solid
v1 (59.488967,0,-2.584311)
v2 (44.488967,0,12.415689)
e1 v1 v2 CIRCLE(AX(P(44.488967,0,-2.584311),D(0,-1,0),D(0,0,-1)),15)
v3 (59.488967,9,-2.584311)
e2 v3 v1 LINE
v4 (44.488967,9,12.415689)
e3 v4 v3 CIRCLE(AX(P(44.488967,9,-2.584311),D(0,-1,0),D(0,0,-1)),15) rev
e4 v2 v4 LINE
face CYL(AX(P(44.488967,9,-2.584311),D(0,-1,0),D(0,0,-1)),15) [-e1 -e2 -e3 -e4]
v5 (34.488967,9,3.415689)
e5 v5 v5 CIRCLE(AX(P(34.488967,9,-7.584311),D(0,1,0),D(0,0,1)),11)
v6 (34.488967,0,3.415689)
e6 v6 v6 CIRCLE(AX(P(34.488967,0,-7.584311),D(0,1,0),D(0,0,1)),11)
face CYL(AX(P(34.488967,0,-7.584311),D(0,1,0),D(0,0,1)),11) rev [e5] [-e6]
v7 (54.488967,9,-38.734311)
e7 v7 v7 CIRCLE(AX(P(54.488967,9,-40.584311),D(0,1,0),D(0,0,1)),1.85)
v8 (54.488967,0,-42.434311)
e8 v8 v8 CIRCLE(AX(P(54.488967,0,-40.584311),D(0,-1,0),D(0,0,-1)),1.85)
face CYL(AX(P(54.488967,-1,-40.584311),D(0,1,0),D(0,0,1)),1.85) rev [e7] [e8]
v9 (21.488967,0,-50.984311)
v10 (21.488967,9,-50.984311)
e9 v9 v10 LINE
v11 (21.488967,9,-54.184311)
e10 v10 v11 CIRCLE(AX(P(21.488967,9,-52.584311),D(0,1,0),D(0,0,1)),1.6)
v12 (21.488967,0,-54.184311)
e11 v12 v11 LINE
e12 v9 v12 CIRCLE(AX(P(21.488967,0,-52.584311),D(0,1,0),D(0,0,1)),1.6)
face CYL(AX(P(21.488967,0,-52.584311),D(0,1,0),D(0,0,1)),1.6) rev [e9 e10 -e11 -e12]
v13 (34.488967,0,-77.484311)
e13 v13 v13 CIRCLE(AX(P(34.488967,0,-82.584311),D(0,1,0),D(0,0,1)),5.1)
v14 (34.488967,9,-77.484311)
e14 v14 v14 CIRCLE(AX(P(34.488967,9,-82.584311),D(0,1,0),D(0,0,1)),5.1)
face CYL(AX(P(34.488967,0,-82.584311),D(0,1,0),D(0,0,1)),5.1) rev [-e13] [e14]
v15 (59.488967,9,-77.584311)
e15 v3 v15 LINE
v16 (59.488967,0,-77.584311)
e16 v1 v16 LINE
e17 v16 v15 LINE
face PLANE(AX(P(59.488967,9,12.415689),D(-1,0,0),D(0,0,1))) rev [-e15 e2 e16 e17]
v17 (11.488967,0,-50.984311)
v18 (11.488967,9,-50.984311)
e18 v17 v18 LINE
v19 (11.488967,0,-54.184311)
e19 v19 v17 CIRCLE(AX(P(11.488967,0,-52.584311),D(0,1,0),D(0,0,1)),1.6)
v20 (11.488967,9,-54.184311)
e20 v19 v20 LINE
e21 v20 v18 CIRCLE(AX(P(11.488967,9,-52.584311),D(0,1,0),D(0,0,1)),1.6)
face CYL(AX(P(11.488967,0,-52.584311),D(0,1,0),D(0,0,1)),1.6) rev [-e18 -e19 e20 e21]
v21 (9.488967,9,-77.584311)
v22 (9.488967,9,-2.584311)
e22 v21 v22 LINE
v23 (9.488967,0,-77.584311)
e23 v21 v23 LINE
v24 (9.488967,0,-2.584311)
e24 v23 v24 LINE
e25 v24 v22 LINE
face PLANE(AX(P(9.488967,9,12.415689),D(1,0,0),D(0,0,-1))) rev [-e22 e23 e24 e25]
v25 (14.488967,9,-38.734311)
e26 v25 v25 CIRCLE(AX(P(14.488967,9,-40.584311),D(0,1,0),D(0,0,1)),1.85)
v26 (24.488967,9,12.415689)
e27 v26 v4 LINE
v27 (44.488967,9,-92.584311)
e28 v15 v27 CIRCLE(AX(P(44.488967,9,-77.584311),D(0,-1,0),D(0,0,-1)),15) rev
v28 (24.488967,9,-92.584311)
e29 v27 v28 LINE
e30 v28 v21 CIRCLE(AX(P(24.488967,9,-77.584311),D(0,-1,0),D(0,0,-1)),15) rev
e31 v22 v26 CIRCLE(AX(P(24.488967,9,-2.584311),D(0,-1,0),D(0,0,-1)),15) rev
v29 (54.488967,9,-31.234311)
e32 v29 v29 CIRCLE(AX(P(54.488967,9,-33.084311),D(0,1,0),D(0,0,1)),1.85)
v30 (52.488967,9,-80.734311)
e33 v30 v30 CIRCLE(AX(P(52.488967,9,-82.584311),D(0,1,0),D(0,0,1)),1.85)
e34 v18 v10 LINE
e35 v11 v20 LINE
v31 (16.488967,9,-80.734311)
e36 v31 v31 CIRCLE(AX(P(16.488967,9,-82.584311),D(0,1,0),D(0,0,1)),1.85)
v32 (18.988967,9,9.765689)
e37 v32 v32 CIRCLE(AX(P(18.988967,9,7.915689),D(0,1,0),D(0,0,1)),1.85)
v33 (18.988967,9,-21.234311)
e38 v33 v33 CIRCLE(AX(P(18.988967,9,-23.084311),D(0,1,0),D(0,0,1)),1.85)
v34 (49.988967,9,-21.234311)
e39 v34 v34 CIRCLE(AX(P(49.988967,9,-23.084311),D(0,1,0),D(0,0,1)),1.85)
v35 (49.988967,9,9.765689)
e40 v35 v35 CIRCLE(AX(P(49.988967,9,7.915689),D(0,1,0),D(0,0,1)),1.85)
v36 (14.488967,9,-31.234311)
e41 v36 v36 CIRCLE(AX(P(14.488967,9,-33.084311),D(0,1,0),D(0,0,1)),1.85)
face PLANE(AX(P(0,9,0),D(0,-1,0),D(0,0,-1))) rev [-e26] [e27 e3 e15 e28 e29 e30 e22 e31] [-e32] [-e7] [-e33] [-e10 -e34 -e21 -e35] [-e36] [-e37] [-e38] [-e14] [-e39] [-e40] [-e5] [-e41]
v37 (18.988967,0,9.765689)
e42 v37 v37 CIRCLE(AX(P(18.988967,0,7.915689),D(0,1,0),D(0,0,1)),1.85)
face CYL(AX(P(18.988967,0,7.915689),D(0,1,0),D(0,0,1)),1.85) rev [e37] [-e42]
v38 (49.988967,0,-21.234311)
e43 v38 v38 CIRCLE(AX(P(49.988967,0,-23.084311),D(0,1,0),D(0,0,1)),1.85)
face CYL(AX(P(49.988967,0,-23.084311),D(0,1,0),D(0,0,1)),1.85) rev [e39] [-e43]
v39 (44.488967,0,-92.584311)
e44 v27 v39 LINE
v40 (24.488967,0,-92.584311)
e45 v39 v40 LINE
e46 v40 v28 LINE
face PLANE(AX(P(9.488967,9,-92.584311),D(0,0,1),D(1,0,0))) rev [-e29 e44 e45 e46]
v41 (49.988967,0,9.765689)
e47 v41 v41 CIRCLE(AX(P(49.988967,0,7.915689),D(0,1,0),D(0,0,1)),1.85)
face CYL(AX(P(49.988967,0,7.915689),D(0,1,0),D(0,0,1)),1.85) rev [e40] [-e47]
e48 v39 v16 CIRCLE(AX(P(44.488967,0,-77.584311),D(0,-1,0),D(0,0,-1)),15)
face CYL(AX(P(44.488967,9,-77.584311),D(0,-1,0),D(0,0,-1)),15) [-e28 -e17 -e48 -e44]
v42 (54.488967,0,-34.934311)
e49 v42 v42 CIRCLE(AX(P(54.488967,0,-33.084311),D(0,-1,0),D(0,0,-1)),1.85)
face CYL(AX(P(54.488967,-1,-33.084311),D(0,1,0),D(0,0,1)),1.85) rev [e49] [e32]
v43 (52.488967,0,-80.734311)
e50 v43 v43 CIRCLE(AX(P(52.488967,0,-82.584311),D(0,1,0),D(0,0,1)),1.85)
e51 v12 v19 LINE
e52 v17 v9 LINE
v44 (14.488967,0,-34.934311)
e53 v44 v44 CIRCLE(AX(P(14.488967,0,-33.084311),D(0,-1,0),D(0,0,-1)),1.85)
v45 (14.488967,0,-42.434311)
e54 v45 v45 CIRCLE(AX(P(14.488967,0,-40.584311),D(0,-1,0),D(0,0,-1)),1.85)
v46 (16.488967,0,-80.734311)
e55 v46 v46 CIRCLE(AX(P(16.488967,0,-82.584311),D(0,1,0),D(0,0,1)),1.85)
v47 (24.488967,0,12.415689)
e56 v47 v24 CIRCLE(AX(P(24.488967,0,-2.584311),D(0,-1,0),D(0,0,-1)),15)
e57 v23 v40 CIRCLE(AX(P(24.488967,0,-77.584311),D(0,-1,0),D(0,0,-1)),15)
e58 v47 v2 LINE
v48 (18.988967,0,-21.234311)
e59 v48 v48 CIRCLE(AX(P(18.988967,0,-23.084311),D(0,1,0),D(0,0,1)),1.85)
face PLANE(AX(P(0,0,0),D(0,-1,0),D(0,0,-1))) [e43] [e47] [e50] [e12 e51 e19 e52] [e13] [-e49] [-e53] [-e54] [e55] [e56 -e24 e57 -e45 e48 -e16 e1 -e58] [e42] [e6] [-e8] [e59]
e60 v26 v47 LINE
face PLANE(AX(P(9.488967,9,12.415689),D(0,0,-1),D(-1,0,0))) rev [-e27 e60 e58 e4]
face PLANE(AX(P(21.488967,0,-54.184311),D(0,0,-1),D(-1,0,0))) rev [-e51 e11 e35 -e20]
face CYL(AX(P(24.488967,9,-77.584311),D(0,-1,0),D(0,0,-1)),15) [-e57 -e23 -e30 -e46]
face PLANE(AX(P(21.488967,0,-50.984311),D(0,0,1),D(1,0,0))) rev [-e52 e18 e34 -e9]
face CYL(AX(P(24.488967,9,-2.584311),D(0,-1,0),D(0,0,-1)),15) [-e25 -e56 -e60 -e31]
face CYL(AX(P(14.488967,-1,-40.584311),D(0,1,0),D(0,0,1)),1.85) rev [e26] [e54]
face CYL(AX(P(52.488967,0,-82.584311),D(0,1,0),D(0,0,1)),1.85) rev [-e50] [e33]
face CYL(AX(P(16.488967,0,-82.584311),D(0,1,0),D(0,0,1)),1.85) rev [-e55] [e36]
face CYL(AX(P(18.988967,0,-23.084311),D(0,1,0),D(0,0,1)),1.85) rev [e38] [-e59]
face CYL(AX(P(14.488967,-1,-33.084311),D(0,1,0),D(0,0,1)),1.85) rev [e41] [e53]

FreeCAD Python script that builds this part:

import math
import FreeCAD as App
import Part
import Sketcher


def edges_at(feature, points):
    """Names of the edges that pass closest to the given points."""
    edges = feature.Shape.Edges
    near = lambda p: min(range(len(edges)), key=lambda i: edges[i].distToShape(Part.Vertex(*p))[0])
    return sorted({f"Edge{near(p) + 1}" for p in points})


def add_polygon(sketch, points):
    """Adds a closed chain of lines whose ends are joined by coincident constraints."""
    first, n = sketch.GeometryCount, len(points)
    for a, b in zip(points, points[1:] + points[:1]):
        sketch.addGeometry(Part.LineSegment(App.Vector(*a, 0), App.Vector(*b, 0)), False)
    for i in range(n):
        sketch.addConstraint(Sketcher.Constraint("Coincident", first + i, 2, first + (i + 1) % n, 1))

doc = App.newDocument("Part")
body = doc.addObject("PartDesign::Body", "Body")

sketch1 = body.newObject("Sketcher::SketchObject", "Sketch")
sketch1.AttachmentSupport = (doc.getObject("XZ_Plane"), [""])
sketch1.MapMode = "FlatFace"
add_polygon(sketch1, [(9, -93), (9, 12), (59, 12), (59, -93)])
sketch1.addConstraint([
    Sketcher.Constraint("Vertical", 0),
    Sketcher.Constraint("Horizontal", 1),
    Sketcher.Constraint("Vertical", 2),
    Sketcher.Constraint("Horizontal", 3),
    Sketcher.Constraint("DistanceX", 1, 1, 1, 2, 50.0),
    Sketcher.Constraint("DistanceY", 0, 1, 0, 2, 105.0),
    Sketcher.Constraint("DistanceY", -1, 1, 0, 2, 12.415689),
    Sketcher.Constraint("DistanceX", -1, 1, 0, 2, 9.488967),
])
pad1 = body.newObject("PartDesign::Pad", "Pad")
pad1.Profile = sketch1
pad1.Length = 9
pad1.Reversed = True

sketch2 = body.newObject("Sketcher::SketchObject", "Sketch001")
sketch2.AttachmentSupport = (doc.getObject("XZ_Plane"), [""])
sketch2.MapMode = "FlatFace"
sketch2.AttachmentOffset = App.Placement(App.Vector(0, 0, -9), App.Rotation())
sketch2.addGeometry([
    Part.Circle(App.Vector(34.5, -7.6, 0), App.Vector(0, 0, 1), 11),
    Part.Circle(App.Vector(50, -23.1, 0), App.Vector(0, 0, 1), 1.9),
    Part.Circle(App.Vector(19, 7.9, 0), App.Vector(0, 0, 1), 1.9),
    Part.Circle(App.Vector(50, 7.9, 0), App.Vector(0, 0, 1), 1.9),
    Part.Circle(App.Vector(19, -23.1, 0), App.Vector(0, 0, 1), 1.9),
    Part.Circle(App.Vector(52.5, -82.6, 0), App.Vector(0, 0, 1), 1.9),
    Part.Circle(App.Vector(34.5, -82.6, 0), App.Vector(0, 0, 1), 5.1),
    Part.Circle(App.Vector(16.5, -82.6, 0), App.Vector(0, 0, 1), 1.9),
    Part.LineSegment(App.Vector(11.5, -51, 0), App.Vector(21.5, -51, 0)),
    Part.ArcOfCircle(Part.Circle(App.Vector(21.5, -52.6, 0), App.Vector(0, 0, 1), 1.6), math.radians(-90), math.radians(90)),
    Part.LineSegment(App.Vector(21.5, -54.2, 0), App.Vector(11.5, -54.2, 0)),
    Part.ArcOfCircle(Part.Circle(App.Vector(11.5, -52.6, 0), App.Vector(0, 0, 1), 1.6), math.radians(90), math.radians(270)),
], False)
sketch2.addConstraint([
    Sketcher.Constraint("Tangent", 8, 2, 9, 2),
    Sketcher.Constraint("Tangent", 9, 1, 10, 1),
    Sketcher.Constraint("Tangent", 10, 2, 11, 2),
    Sketcher.Constraint("Tangent", 11, 1, 8, 1),
    Sketcher.Constraint("Horizontal", 8),
    Sketcher.Constraint("Horizontal", 10),
    Sketcher.Constraint("Equal", 1, 2),
    Sketcher.Constraint("Equal", 2, 3),
    Sketcher.Constraint("Equal", 3, 4),
    Sketcher.Constraint("Equal", 4, 5),
    Sketcher.Constraint("Equal", 5, 7),
    Sketcher.Constraint("Horizontal", 2, 3, 3, 3),
    Sketcher.Constraint("Horizontal", 1, 3, 4, 3),
    Sketcher.Constraint("Horizontal", 5, 3, 6, 3),
    Sketcher.Constraint("Horizontal", 6, 3, 7, 3),
    Sketcher.Constraint("Vertical", 1, 3, 3, 3),
    Sketcher.Constraint("Vertical", 2, 3, 4, 3),
    Sketcher.Constraint("Vertical", 0, 3, 6, 3),
    Sketcher.Constraint("Diameter", 0, 22.0),
    Sketcher.Constraint("Diameter", 1, 3.7),
    Sketcher.Constraint("Diameter", 6, 10.2),
    Sketcher.Constraint("Radius", 9, 1.6),
    Sketcher.Constraint("DistanceX", 8, 1, 8, 2, 10.0),
    Sketcher.Constraint("DistanceX", 2, 3, 1, 3, 31.0),
    Sketcher.Constraint("DistanceY", 1, 3, 2, 3, 31.0),
    Sketcher.Constraint("DistanceX", 0, 3, 5, 3, 18.0),
    Sketcher.Constraint("DistanceY", 5, 3, 0, 3, 75.0),
    Sketcher.Constraint("DistanceX", 7, 3, 6, 3, 18.0),
    Sketcher.Constraint("DistanceX", 7, 3, 9, 3, 5.0),
    Sketcher.Constraint("DistanceY", 7, 3, 9, 3, 30.0),
    Sketcher.Constraint("DistanceX", 0, 3, 1, 3, 15.5),
    Sketcher.Constraint("DistanceY", 1, 3, 0, 3, 15.5),
    Sketcher.Constraint("DistanceY", 0, 3, -1, 1, 7.584311),
    Sketcher.Constraint("DistanceX", -1, 1, 0, 3, 34.488967),
])
pocket1 = body.newObject("PartDesign::Pocket", "Pocket")
pocket1.Profile = sketch2
pocket1.Length = 9
pocket1.Reversed = True

sketch3 = body.newObject("Sketcher::SketchObject", "Sketch002")
sketch3.AttachmentSupport = (doc.getObject("XZ_Plane"), [""])
sketch3.MapMode = "FlatFace"
sketch3.AttachmentOffset = App.Placement(App.Vector(0, 0, -9), App.Rotation())
sketch3.addGeometry([
    Part.Circle(App.Vector(14.5, -40.6, 0), App.Vector(0, 0, 1), 1.9),
    Part.Circle(App.Vector(54.5, -40.6, 0), App.Vector(0, 0, 1), 1.9),
    Part.Circle(App.Vector(54.5, -33.1, 0), App.Vector(0, 0, 1), 1.9),
    Part.Circle(App.Vector(14.5, -33.1, 0), App.Vector(0, 0, 1), 1.9),
], False)
sketch3.addConstraint([
    Sketcher.Constraint("Equal", 0, 1),
    Sketcher.Constraint("Equal", 1, 2),
    Sketcher.Constraint("Equal", 2, 3),
    Sketcher.Constraint("Horizontal", 0, 3, 1, 3),
    Sketcher.Constraint("Horizontal", 2, 3, 3, 3),
    Sketcher.Constraint("Vertical", 1, 3, 2, 3),
    Sketcher.Constraint("Vertical", 0, 3, 3, 3),
    Sketcher.Constraint("Diameter", 0, 3.7),
    Sketcher.Constraint("DistanceX", 0, 3, 1, 3, 40.0),
    Sketcher.Constraint("DistanceY", 1, 3, 2, 3, 7.5),
    Sketcher.Constraint("DistanceY", 0, 3, -1, 1, 40.584311),
    Sketcher.Constraint("DistanceX", -1, 1, 0, 3, 14.488967),
])
pocket2 = body.newObject("PartDesign::Pocket", "Pocket001")
pocket2.Profile = sketch3
pocket2.Length = 10
pocket2.Reversed = True
doc.recompute()

fillet = body.newObject("PartDesign::Fillet", "Fillet")
fillet.Base = (pocket2, edges_at(pocket2, [
    (9.489, 4.5, -92.584),
    (59.489, 4.5, -92.584),
    (59.489, 4.5, 12.416),
    (9.489, 4.5, 12.416),
]))
fillet.Radius = 15

doc.recompute()
